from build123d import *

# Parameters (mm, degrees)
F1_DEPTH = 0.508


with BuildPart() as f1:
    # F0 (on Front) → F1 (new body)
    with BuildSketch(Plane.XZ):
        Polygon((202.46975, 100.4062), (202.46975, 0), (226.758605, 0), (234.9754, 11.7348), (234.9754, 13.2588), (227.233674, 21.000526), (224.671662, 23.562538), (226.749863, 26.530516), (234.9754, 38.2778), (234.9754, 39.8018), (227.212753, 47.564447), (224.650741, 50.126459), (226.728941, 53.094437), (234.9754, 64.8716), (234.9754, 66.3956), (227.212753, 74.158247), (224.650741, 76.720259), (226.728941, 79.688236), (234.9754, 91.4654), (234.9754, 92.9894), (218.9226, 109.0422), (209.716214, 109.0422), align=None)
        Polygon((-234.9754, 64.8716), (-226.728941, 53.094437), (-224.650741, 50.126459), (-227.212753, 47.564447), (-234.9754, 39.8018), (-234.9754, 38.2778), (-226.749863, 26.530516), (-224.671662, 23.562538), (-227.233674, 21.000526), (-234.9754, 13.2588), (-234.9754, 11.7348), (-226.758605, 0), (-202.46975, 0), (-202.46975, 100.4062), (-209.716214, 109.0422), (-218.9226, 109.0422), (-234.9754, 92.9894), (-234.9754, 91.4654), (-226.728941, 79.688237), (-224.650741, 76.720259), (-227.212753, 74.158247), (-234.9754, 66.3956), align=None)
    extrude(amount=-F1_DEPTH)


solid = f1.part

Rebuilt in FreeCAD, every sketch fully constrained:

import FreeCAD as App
import Part
import Sketcher
Q = App.Units.Quantity

doc = App.newDocument("Part")
params = doc.addObject("Spreadsheet::Sheet", "Params")
for row, (alias, value) in enumerate([
    ("sketch1_height", "0.06 in"),
    ("sketch1_height2", "3.953 in"),
    ("pad1_length", "0.02 in"),
], start=1):
    params.set(f"A{row}", alias)
    params.set(f"B{row}", "=" + value)
    params.setAlias(f"B{row}", alias)

body = doc.addObject("PartDesign::Body", "Body")
body.AllowCompound = True

sketch1 = doc.addObject("Sketcher::SketchObject", "Sketch")
body.addObject(sketch1)
sketch1.AttachmentSupport = (doc.XZ_Plane, [""])
sketch1.MapMode = "FlatFace"
sketch1.addGeometry(Part.LineSegment(App.Vector(202.46975, 100.4062, 0), App.Vector(202.46975, 0, 0)), False)
sketch1.addGeometry(Part.LineSegment(App.Vector(202.46975, 0, 0), App.Vector(226.758605, 0, 0)), False)
sketch1.addGeometry(Part.LineSegment(App.Vector(226.758605, 0, 0), App.Vector(234.9754, 11.7348, 0)), False)
sketch1.addGeometry(Part.LineSegment(App.Vector(234.9754, 11.7348, 0), App.Vector(234.9754, 13.2588, 0)), False)
sketch1.addGeometry(Part.LineSegment(App.Vector(234.9754, 13.2588, 0), App.Vector(224.671662, 23.562538, 0)), False)
sketch1.addGeometry(Part.LineSegment(App.Vector(224.671662, 23.562538, 0), App.Vector(226.749863, 26.530516, 0)), False)
sketch1.addGeometry(Part.LineSegment(App.Vector(226.749863, 26.530516, 0), App.Vector(234.9754, 38.2778, 0)), False)
sketch1.addGeometry(Part.LineSegment(App.Vector(234.9754, 38.2778, 0), App.Vector(234.9754, 39.8018, 0)), False)
sketch1.addGeometry(Part.LineSegment(App.Vector(234.9754, 39.8018, 0), App.Vector(224.650741, 50.126459, 0)), False)
sketch1.addGeometry(Part.LineSegment(App.Vector(224.650741, 50.126459, 0), App.Vector(226.728941, 53.094437, 0)), False)
sketch1.addGeometry(Part.LineSegment(App.Vector(226.728941, 53.094437, 0), App.Vector(234.9754, 64.8716, 0)), False)
sketch1.addGeometry(Part.LineSegment(App.Vector(234.9754, 64.8716, 0), App.Vector(234.9754, 66.3956, 0)), False)
sketch1.addGeometry(Part.LineSegment(App.Vector(234.9754, 66.3956, 0), App.Vector(224.650741, 76.720259, 0)), False)
sketch1.addGeometry(Part.LineSegment(App.Vector(224.650741, 76.720259, 0), App.Vector(226.728941, 79.688236, 0)), False)
sketch1.addGeometry(Part.LineSegment(App.Vector(226.728941, 79.688236, 0), App.Vector(234.9754, 91.4654, 0)), False)
sketch1.addGeometry(Part.LineSegment(App.Vector(234.9754, 91.4654, 0), App.Vector(234.9754, 92.9894, 0)), False)
sketch1.addGeometry(Part.LineSegment(App.Vector(234.9754, 92.9894, 0), App.Vector(218.9226, 109.0422, 0)), False)
sketch1.addGeometry(Part.LineSegment(App.Vector(218.9226, 109.0422, 0), App.Vector(209.716214, 109.0422, 0)), False)
sketch1.addGeometry(Part.LineSegment(App.Vector(209.716214, 109.0422, 0), App.Vector(202.46975, 100.4062, 0)), False)
sketch1.addGeometry(Part.LineSegment(App.Vector(-234.9754, 64.8716, 0), App.Vector(-226.728941, 53.094437, 0)), False)
sketch1.addGeometry(Part.LineSegment(App.Vector(-226.728941, 53.094437, 0), App.Vector(-224.650741, 50.126459, 0)), False)
sketch1.addGeometry(Part.LineSegment(App.Vector(-224.650741, 50.126459, 0), App.Vector(-234.9754, 39.8018, 0)), False)
sketch1.addGeometry(Part.LineSegment(App.Vector(-234.9754, 39.8018, 0), App.Vector(-234.9754, 38.2778, 0)), False)
sketch1.addGeometry(Part.LineSegment(App.Vector(-234.9754, 38.2778, 0), App.Vector(-226.749863, 26.530516, 0)), False)
sketch1.addGeometry(Part.LineSegment(App.Vector(-226.749863, 26.530516, 0), App.Vector(-224.671662, 23.562538, 0)), False)
sketch1.addGeometry(Part.LineSegment(App.Vector(-224.671662, 23.562538, 0), App.Vector(-234.9754, 13.2588, 0)), False)
sketch1.addGeometry(Part.LineSegment(App.Vector(-234.9754, 13.2588, 0), App.Vector(-234.9754, 11.7348, 0)), False)
sketch1.addGeometry(Part.LineSegment(App.Vector(-234.9754, 11.7348, 0), App.Vector(-226.758605, 0, 0)), False)
sketch1.addGeometry(Part.LineSegment(App.Vector(-226.758605, 0, 0), App.Vector(-202.46975, 0, 0)), False)
sketch1.addGeometry(Part.LineSegment(App.Vector(-202.46975, 0, 0), App.Vector(-202.46975, 100.4062, 0)), False)
sketch1.addGeometry(Part.LineSegment(App.Vector(-202.46975, 100.4062, 0), App.Vector(-209.716214, 109.0422, 0)), False)
sketch1.addGeometry(Part.LineSegment(App.Vector(-209.716214, 109.0422, 0), App.Vector(-218.9226, 109.0422, 0)), False)
sketch1.addGeometry(Part.LineSegment(App.Vector(-218.9226, 109.0422, 0), App.Vector(-234.9754, 92.9894, 0)), False)
sketch1.addGeometry(Part.LineSegment(App.Vector(-234.9754, 92.9894, 0), App.Vector(-234.9754, 91.4654, 0)), False)
sketch1.addGeometry(Part.LineSegment(App.Vector(-234.9754, 91.4654, 0), App.Vector(-226.728941, 79.688237, 0)), False)
sketch1.addGeometry(Part.LineSegment(App.Vector(-226.728941, 79.688237, 0), App.Vector(-224.650741, 76.720259, 0)), False)
sketch1.addGeometry(Part.LineSegment(App.Vector(-224.650741, 76.720259, 0), App.Vector(-234.9754, 66.3956, 0)), False)
sketch1.addGeometry(Part.LineSegment(App.Vector(-234.9754, 66.3956, 0), App.Vector(-234.9754, 64.8716, 0)), False)
sketch1.addConstraint(Sketcher.Constraint("Coincident", 0, 2, 1, 1))
sketch1.addConstraint(Sketcher.Constraint("Coincident", 1, 2, 2, 1))
sketch1.addConstraint(Sketcher.Constraint("Coincident", 2, 2, 3, 1))
sketch1.addConstraint(Sketcher.Constraint("Coincident", 3, 2, 4, 1))
sketch1.addConstraint(Sketcher.Constraint("Coincident", 4, 2, 5, 1))
sketch1.addConstraint(Sketcher.Constraint("Coincident", 5, 2, 6, 1))
sketch1.addConstraint(Sketcher.Constraint("Coincident", 6, 2, 7, 1))
sketch1.addConstraint(Sketcher.Constraint("Coincident", 7, 2, 8, 1))
sketch1.addConstraint(Sketcher.Constraint("Coincident", 8, 2, 9, 1))
sketch1.addConstraint(Sketcher.Constraint("Coincident", 9, 2, 10, 1))
sketch1.addConstraint(Sketcher.Constraint("Coincident", 10, 2, 11, 1))
sketch1.addConstraint(Sketcher.Constraint("Coincident", 11, 2, 12, 1))
sketch1.addConstraint(Sketcher.Constraint("Coincident", 12, 2, 13, 1))
sketch1.addConstraint(Sketcher.Constraint("Coincident", 13, 2, 14, 1))
sketch1.addConstraint(Sketcher.Constraint("Coincident", 14, 2, 15, 1))
sketch1.addConstraint(Sketcher.Constraint("Coincident", 15, 2, 16, 1))
sketch1.addConstraint(Sketcher.Constraint("Coincident", 16, 2, 17, 1))
sketch1.addConstraint(Sketcher.Constraint("Coincident", 17, 2, 18, 1))
sketch1.addConstraint(Sketcher.Constraint("Coincident", 18, 2, 0, 1))
sketch1.addConstraint(Sketcher.Constraint("Coincident", 19, 2, 20, 1))
sketch1.addConstraint(Sketcher.Constraint("Coincident", 20, 2, 21, 1))
sketch1.addConstraint(Sketcher.Constraint("Coincident", 21, 2, 22, 1))
sketch1.addConstraint(Sketcher.Constraint("Coincident", 22, 2, 23, 1))
sketch1.addConstraint(Sketcher.Constraint("Coincident", 23, 2, 24, 1))
sketch1.addConstraint(Sketcher.Constraint("Coincident", 24, 2, 25, 1))
sketch1.addConstraint(Sketcher.Constraint("Coincident", 25, 2, 26, 1))
sketch1.addConstraint(Sketcher.Constraint("Coincident", 26, 2, 27, 1))
sketch1.addConstraint(Sketcher.Constraint("Coincident", 27, 2, 28, 1))
sketch1.addConstraint(Sketcher.Constraint("Coincident", 28, 2, 29, 1))
sketch1.addConstraint(Sketcher.Constraint("Coincident", 29, 2, 30, 1))
sketch1.addConstraint(Sketcher.Constraint("Coincident", 30, 2, 31, 1))
sketch1.addConstraint(Sketcher.Constraint("Coincident", 31, 2, 32, 1))
sketch1.addConstraint(Sketcher.Constraint("Coincident", 32, 2, 33, 1))
sketch1.addConstraint(Sketcher.Constraint("Coincident", 33, 2, 34, 1))
sketch1.addConstraint(Sketcher.Constraint("Coincident", 34, 2, 35, 1))
sketch1.addConstraint(Sketcher.Constraint("Coincident", 35, 2, 36, 1))
sketch1.addConstraint(Sketcher.Constraint("Coincident", 36, 2, 37, 1))
sketch1.addConstraint(Sketcher.Constraint("Coincident", 37, 2, 19, 1))
sketch1.addConstraint(Sketcher.Constraint("Vertical", 0))
sketch1.addConstraint(Sketcher.Constraint("Horizontal", 1))
sketch1.addConstraint(Sketcher.Constraint("Vertical", 3))
sketch1.addConstraint(Sketcher.Constraint("Vertical", 7))
sketch1.addConstraint(Sketcher.Constraint("Vertical", 11))
sketch1.addConstraint(Sketcher.Constraint("Vertical", 15))
sketch1.addConstraint(Sketcher.Constraint("Horizontal", 17))
sketch1.addConstraint(Sketcher.Constraint("Vertical", 22))
sketch1.addConstraint(Sketcher.Constraint("Vertical", 26))
sketch1.addConstraint(Sketcher.Constraint("Horizontal", 28))
sketch1.addConstraint(Sketcher.Constraint("Vertical", 29))
sketch1.addConstraint(Sketcher.Constraint("Horizontal", 31))
sketch1.addConstraint(Sketcher.Constraint("Vertical", 33))
sketch1.addConstraint(Sketcher.Constraint("Vertical", 37))
sketch1.addConstraint(Sketcher.Constraint("Symmetric", 1, 2, 27, 2, -1, 1))
sketch1.addConstraint(Sketcher.Constraint("Symmetric", 9, 2, 19, 2, -2))
sketch1.addConstraint(Sketcher.Constraint("Symmetric", 8, 2, 20, 2, -2))
sketch1.addConstraint(Sketcher.Constraint("Symmetric", 7, 2, 21, 2, -2))
sketch1.addConstraint(Sketcher.Constraint("Symmetric", 5, 2, 23, 2, -2))
sketch1.addConstraint(Sketcher.Constraint("Symmetric", 4, 2, 24, 2, -2))
sketch1.addConstraint(Sketcher.Constraint("Symmetric", 3, 2, 25, 2, -2))
sketch1.addConstraint(Sketcher.Constraint("Symmetric", 0, 2, 28, 2, -2))
sketch1.addConstraint(Sketcher.Constraint("Symmetric", 17, 2, 30, 2, -2))
sketch1.addConstraint(Sketcher.Constraint("Symmetric", 15, 2, 32, 2, -2))
sketch1.addConstraint(Sketcher.Constraint("Symmetric", 13, 2, 34, 2, -2))
sketch1.addConstraint(Sketcher.Constraint("Symmetric", 12, 2, 35, 2, -2))
sketch1.addConstraint(Sketcher.Constraint("Symmetric", 11, 2, 36, 2, -2))
sketch1.addConstraint(Sketcher.Constraint("Parallel", 2, 5))
sketch1.addConstraint(Sketcher.Constraint("Parallel", 5, 6))
sketch1.addConstraint(Sketcher.Constraint("Parallel", 4, 8))
sketch1.addConstraint(Sketcher.Constraint("Parallel", 6, 9))
sketch1.addConstraint(Sketcher.Constraint("Parallel", 9, 10))
sketch1.addConstraint(Sketcher.Constraint("Parallel", 8, 12))
sketch1.addConstraint(Sketcher.Constraint("Parallel", 10, 13))
sketch1.addConstraint(Sketcher.Constraint("Parallel", 13, 14))
sketch1.addConstraint(Sketcher.Constraint("Parallel", 12, 16))
sketch1.addConstraint(Sketcher.Constraint("Parallel", 19, 20))
sketch1.addConstraint(Sketcher.Constraint("Perpendicular", 16, 21))
sketch1.addConstraint(Sketcher.Constraint("Parallel", 20, 23))
sketch1.addConstraint(Sketcher.Constraint("Parallel", 24, 27))
sketch1.addConstraint(Sketcher.Constraint("Parallel", 25, 32))
sketch1.addConstraint(Sketcher.Constraint("Parallel", 27, 34))
sketch1.addConstraint(Sketcher.Constraint("Horizontal", 18, 2, 29, 2))
sketch1.addConstraint(Sketcher.Constraint("Vertical", 3, 2, 6, 2))
sketch1.addConstraint(Sketcher.Constraint("Vertical", 7, 2, 10, 2))
sketch1.addConstraint(Sketcher.Constraint("Vertical", 8, 2, 12, 2))
sketch1.addConstraint(Sketcher.Constraint("Vertical", 9, 2, 13, 2))
sketch1.addConstraint(Sketcher.Constraint("Vertical", 11, 2, 14, 2))
sketch1.addConstraint(Sketcher.Constraint("Equal", 3, 7))
sketch1.addConstraint(Sketcher.Constraint("Equal", 7, 11))
sketch1.addConstraint(Sketcher.Constraint("Equal", 11, 15))
sketch1.addConstraint(Sketcher.Constraint("Equal", 5, 9))
sketch1.addConstraint(Sketcher.Constraint("Angle", 2, Q("55.000001 deg")))
sketch1.addConstraint(Sketcher.Constraint("Angle", 18, Q("-129.999998 deg")))
sketch1.addConstraint(Sketcher.Constraint("DistanceY", 3, 1, 3, 2, Q("0.06 in")))
sketch1.addConstraint(Sketcher.Constraint("DistanceY", 0, 2, 0, 1, Q("3.953 in")))
sketch1.addConstraint(Sketcher.Constraint("DistanceY", 18, 2, 17, 2, Q("0.34 in")))
sketch1.addConstraint(Sketcher.Constraint("DistanceX", -1, 1, 2, 2, Q("9.251 in")))
sketch1.addConstraint(Sketcher.Constraint("DistanceY", -1, 1, 2, 2, Q("0.462 in")))
sketch1.addConstraint(Sketcher.Constraint("DistanceY", -1, 1, 6, 2, Q("1.507 in")))
sketch1.addConstraint(Sketcher.Constraint("DistanceY", -1, 1, 10, 2, Q("2.554 in")))
sketch1.addConstraint(Sketcher.Constraint("DistanceX", 4, 2, 5, 2, Q("2.078201 mm")))
sketch1.addConstraint(Sketcher.Constraint("DistanceX", 1, 1, 1, 2, Q("24.288855 mm")))
sketch1.setExpression("Constraints[92]", "Params.sketch1_height")
sketch1.setExpression("Constraints[93]", "Params.sketch1_height2")
pad1 = doc.addObject("PartDesign::Pad", "Pad")
body.addObject(pad1)
pad1.Profile = sketch1
pad1.setExpression("Length", "Params.pad1_length")
pad1.Reversed = True

doc.recompute()
